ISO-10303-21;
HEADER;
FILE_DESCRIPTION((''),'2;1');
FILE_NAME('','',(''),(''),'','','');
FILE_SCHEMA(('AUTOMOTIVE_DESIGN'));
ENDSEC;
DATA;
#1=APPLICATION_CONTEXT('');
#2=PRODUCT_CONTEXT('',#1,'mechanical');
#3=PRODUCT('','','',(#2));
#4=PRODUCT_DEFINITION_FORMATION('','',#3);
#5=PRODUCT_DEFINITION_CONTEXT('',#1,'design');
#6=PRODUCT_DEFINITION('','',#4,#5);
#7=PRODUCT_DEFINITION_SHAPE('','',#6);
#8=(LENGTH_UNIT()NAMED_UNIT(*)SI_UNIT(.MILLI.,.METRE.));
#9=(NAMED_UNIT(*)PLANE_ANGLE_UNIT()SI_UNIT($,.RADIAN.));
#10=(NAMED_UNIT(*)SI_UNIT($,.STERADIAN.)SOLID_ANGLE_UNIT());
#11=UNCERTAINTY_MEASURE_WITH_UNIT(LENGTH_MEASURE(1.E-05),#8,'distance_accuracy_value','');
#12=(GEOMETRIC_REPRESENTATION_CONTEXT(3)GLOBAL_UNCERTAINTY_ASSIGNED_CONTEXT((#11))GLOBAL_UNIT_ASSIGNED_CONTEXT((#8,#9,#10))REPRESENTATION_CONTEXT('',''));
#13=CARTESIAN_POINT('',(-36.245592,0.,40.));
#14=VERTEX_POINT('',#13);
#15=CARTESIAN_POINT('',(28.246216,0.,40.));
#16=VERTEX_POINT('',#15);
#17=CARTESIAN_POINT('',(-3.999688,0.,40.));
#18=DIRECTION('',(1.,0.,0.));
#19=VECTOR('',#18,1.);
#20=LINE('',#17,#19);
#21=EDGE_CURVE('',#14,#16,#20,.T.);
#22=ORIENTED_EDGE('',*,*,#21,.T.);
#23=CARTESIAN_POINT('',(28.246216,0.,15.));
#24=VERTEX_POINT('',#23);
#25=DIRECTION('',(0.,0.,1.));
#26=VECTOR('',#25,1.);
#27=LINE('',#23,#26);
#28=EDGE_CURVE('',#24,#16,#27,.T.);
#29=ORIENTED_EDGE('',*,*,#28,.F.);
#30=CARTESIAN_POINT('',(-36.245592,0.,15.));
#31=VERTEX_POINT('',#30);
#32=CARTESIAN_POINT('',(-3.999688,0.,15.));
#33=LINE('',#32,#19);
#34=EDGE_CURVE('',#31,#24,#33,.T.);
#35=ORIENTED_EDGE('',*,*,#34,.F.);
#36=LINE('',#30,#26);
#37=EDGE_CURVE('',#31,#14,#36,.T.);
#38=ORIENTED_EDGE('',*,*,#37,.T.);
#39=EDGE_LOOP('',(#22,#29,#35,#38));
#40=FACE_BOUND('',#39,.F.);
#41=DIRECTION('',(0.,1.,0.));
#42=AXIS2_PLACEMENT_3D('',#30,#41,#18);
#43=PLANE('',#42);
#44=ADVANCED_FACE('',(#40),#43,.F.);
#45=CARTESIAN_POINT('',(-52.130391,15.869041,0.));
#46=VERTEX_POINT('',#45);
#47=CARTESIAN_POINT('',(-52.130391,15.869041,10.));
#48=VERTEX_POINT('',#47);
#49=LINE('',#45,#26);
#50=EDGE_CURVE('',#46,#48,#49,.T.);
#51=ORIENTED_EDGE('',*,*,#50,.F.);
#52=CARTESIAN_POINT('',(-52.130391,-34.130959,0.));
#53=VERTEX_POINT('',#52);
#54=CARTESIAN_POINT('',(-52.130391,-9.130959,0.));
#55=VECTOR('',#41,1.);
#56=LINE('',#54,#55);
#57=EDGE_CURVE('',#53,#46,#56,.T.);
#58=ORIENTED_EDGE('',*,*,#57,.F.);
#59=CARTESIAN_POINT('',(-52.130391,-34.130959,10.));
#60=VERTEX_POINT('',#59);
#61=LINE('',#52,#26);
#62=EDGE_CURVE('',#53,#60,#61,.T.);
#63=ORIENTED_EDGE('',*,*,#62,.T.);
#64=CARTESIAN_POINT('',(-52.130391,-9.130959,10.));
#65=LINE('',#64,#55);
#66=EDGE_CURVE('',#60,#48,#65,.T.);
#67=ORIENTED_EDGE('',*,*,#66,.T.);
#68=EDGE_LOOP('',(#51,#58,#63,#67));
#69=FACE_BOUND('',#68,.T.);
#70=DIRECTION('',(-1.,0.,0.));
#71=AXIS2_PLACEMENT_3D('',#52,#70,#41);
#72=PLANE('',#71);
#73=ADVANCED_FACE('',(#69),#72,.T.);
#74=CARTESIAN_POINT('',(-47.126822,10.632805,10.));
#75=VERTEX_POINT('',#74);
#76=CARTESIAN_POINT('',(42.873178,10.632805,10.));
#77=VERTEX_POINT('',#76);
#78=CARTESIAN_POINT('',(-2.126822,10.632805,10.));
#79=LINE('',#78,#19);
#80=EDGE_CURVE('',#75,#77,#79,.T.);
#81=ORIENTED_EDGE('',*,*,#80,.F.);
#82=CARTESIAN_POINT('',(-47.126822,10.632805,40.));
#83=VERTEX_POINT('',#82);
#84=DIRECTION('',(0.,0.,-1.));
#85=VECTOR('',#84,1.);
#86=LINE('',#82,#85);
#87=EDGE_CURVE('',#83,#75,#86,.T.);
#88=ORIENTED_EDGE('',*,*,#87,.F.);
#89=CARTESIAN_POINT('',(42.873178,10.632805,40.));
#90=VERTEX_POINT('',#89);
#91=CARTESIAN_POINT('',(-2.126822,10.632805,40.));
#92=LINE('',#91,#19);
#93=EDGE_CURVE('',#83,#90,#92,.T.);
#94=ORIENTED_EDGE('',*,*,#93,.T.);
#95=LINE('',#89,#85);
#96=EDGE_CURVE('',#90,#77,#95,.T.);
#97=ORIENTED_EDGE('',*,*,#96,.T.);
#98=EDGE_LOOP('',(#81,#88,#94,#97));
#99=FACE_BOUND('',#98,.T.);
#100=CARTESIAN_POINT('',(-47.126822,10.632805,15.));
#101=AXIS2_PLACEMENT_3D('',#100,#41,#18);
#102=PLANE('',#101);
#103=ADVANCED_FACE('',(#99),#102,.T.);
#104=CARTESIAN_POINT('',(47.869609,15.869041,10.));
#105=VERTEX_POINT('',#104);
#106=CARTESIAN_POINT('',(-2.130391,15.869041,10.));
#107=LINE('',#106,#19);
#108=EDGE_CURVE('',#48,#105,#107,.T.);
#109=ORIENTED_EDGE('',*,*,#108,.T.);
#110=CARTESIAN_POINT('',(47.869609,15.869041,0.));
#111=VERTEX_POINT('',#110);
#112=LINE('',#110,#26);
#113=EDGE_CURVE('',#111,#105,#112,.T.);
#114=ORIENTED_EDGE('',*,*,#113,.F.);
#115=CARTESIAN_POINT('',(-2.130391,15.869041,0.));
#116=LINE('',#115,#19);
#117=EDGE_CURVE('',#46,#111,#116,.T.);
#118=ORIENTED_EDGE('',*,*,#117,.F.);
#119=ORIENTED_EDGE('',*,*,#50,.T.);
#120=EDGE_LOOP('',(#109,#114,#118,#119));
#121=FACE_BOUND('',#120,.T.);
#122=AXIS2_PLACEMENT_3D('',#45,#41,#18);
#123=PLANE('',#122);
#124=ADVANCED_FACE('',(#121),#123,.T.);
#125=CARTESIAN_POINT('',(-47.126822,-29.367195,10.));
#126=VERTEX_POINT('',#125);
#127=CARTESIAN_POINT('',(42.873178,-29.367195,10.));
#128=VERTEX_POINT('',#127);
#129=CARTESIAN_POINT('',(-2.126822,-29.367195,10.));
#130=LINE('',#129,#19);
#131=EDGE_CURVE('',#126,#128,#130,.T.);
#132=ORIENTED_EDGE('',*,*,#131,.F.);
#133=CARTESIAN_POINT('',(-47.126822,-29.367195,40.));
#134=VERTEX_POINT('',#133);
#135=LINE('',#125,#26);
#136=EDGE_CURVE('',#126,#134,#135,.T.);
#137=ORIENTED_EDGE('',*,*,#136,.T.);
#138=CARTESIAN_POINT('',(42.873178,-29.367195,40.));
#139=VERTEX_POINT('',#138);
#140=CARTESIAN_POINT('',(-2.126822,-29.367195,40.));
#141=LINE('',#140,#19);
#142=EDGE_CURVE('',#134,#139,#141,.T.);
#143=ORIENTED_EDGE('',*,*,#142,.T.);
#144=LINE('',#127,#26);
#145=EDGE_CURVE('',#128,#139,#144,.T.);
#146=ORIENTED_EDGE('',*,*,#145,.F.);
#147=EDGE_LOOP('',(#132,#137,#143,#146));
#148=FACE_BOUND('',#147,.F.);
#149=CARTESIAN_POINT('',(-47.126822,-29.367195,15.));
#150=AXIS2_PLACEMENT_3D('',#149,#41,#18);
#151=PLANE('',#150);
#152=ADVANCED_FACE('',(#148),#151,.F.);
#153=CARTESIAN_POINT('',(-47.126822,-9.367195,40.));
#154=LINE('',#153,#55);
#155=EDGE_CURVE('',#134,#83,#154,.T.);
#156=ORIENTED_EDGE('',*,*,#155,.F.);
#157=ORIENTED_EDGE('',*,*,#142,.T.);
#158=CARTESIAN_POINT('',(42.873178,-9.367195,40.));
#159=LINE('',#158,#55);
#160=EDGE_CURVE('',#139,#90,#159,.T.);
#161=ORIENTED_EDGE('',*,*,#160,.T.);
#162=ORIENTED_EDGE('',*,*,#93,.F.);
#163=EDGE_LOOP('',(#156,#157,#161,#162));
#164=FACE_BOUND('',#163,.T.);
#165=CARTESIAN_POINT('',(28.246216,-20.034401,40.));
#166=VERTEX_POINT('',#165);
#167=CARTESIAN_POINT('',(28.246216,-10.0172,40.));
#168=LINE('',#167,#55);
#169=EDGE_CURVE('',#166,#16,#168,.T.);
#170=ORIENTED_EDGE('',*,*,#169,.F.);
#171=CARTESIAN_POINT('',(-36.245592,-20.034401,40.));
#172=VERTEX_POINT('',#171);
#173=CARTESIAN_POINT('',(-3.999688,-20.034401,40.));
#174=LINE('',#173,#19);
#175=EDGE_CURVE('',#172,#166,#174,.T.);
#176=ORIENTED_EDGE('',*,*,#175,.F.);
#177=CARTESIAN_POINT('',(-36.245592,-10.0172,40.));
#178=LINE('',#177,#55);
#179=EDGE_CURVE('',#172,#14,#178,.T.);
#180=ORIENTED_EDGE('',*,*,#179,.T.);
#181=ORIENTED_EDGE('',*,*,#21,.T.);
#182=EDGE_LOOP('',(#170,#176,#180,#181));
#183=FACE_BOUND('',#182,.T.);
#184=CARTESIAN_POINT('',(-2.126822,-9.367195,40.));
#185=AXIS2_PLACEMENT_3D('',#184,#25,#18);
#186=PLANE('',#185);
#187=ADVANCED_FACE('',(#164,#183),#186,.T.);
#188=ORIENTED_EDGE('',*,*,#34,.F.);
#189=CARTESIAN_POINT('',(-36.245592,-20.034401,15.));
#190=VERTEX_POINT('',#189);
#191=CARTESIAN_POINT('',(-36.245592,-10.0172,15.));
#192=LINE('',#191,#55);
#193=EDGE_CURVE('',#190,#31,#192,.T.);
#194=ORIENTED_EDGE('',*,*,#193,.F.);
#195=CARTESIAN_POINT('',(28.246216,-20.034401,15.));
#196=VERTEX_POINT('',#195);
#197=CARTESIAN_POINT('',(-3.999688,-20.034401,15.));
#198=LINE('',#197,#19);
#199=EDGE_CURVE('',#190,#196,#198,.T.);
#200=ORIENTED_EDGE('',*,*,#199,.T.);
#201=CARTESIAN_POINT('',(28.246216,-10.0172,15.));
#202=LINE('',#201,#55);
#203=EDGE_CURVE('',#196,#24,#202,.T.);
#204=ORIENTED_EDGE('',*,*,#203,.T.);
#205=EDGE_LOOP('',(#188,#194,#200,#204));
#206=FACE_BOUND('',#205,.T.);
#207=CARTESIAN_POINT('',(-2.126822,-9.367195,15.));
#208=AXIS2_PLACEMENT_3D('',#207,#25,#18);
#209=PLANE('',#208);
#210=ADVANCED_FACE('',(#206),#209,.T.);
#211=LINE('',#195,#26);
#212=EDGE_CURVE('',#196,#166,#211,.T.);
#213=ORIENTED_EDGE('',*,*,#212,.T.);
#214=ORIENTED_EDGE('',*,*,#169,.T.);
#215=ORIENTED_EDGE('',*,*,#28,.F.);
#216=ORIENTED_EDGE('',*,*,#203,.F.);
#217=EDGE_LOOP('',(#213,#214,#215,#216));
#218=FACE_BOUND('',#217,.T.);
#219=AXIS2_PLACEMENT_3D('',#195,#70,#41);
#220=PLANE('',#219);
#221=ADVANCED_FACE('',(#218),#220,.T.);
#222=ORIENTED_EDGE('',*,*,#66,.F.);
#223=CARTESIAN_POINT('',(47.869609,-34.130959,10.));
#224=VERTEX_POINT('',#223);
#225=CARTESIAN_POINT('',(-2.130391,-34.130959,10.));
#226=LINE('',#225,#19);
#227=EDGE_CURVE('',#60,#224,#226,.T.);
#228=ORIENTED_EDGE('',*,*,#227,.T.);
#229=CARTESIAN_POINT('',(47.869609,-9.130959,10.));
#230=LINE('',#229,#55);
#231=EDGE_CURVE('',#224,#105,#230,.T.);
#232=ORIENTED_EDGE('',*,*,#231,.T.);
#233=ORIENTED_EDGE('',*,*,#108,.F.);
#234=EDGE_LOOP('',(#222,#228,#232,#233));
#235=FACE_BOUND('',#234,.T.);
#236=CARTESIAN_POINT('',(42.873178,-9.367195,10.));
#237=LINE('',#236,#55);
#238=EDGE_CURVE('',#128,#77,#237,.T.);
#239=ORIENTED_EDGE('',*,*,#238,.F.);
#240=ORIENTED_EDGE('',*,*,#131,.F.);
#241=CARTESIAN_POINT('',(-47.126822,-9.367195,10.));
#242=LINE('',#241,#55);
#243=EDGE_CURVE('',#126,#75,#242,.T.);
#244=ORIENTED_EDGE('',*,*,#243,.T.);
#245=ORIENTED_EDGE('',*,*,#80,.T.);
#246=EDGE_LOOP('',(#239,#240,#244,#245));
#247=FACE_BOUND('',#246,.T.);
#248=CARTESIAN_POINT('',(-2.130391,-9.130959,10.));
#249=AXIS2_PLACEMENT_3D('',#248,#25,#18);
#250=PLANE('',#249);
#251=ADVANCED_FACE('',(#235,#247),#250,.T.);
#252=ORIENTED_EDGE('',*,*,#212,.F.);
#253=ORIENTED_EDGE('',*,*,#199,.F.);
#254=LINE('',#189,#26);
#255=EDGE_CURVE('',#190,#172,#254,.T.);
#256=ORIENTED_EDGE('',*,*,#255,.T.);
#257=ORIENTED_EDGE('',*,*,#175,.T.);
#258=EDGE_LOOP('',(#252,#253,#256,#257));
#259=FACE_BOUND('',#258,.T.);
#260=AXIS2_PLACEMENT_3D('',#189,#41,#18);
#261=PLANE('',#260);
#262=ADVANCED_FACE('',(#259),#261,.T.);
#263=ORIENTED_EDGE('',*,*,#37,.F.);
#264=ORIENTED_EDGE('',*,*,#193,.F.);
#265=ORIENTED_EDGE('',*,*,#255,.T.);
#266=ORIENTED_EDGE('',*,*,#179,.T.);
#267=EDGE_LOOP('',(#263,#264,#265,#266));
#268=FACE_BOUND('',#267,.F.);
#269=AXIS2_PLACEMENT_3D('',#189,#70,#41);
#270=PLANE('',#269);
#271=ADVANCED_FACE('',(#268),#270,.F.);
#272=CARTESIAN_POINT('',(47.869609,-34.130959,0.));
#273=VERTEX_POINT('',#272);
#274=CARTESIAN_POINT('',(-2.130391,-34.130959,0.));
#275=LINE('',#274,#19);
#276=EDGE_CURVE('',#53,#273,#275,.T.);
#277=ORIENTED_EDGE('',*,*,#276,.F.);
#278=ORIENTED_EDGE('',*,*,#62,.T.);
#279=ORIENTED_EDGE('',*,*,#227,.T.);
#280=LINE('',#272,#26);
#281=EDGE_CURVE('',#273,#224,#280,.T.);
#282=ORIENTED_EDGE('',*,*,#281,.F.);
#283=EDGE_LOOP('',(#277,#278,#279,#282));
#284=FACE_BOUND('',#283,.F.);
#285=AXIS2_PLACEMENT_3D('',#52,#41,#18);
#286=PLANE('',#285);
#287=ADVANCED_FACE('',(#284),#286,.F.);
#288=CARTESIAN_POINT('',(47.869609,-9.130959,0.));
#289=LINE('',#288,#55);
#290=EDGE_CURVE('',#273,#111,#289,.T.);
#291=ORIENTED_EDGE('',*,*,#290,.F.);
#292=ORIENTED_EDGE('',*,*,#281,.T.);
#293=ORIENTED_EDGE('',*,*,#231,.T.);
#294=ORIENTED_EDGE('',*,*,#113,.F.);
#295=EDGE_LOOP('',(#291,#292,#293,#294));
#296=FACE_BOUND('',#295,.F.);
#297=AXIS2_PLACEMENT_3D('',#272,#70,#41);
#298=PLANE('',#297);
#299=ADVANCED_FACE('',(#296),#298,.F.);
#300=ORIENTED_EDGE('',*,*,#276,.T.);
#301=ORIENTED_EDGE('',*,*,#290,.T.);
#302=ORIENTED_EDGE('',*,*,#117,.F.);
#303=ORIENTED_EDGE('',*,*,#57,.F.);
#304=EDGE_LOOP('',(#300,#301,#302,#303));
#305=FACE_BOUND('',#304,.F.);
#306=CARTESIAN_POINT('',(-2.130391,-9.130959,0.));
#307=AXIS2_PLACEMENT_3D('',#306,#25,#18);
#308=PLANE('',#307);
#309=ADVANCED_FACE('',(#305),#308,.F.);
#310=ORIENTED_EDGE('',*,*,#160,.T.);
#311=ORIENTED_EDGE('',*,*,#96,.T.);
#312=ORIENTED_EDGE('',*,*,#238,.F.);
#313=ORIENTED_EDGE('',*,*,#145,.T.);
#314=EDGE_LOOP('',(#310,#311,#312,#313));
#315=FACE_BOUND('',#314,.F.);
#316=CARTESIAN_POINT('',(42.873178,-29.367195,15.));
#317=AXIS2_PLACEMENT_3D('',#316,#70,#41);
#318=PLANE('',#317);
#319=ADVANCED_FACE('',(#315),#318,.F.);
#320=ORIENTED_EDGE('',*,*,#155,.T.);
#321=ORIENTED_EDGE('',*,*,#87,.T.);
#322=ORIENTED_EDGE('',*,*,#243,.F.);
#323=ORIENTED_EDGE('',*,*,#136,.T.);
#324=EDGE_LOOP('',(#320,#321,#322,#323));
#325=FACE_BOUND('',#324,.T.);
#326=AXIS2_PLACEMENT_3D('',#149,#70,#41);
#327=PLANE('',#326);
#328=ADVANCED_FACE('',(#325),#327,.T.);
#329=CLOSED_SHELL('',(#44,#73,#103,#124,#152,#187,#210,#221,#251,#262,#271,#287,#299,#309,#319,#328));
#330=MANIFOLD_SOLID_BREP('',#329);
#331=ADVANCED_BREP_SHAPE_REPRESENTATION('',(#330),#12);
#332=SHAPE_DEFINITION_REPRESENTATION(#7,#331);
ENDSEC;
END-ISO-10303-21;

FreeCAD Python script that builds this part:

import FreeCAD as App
import Part
import Sketcher
from FreeCAD import Vector


def add_polygon(sketch, points):
    """Adds a closed chain of lines whose ends are joined by coincident constraints."""
    first, n = sketch.GeometryCount, len(points)
    for a, b in zip(points, points[1:] + points[:1]):
        sketch.addGeometry(Part.LineSegment(App.Vector(*a, 0), App.Vector(*b, 0)), False)
    for i in range(n):
        sketch.addConstraint(Sketcher.Constraint("Coincident", first + i, 2, first + (i + 1) % n, 1))

doc = App.newDocument("Part")
body = doc.addObject("PartDesign::Body", "Body")

sketch1 = doc.addObject("Sketcher::SketchObject", "Sketch")
body.addObject(sketch1)
sketch1.AttachmentSupport = (doc.XY_Plane, [""])
sketch1.MapMode = "FlatFace"
add_polygon(sketch1, [(-52.130391, 15.869041), (-52.130391, -34.130959), (47.869609, -34.130959), (47.869609, 15.869041)])
sketch1.addConstraint(Sketcher.Constraint("Vertical", 0))
sketch1.addConstraint(Sketcher.Constraint("Horizontal", 1))
sketch1.addConstraint(Sketcher.Constraint("Vertical", 2))
sketch1.addConstraint(Sketcher.Constraint("Horizontal", 3))
sketch1.addConstraint(Sketcher.Constraint("DistanceX", 1, 1, 1, 2, 100.0))
sketch1.addConstraint(Sketcher.Constraint("DistanceY", 0, 2, 0, 1, 50.0))
sketch1.addConstraint(Sketcher.Constraint("DistanceX", 0, 2, -1, 1, 52.130391))
sketch1.addConstraint(Sketcher.Constraint("DistanceY", 0, 2, -1, 1, 34.130959))
pad1 = doc.addObject("PartDesign::Pad", "Pad")
body.addObject(pad1)
pad1.Profile = sketch1
pad1.Length = 10

sketch2 = doc.addObject("Sketcher::SketchObject", "Sketch001")
body.addObject(sketch2)
sketch2.AttachmentSupport = (doc.XY_Plane, [""])
sketch2.MapMode = "FlatFace"
sketch2.AttachmentOffset = App.Placement(Vector(0, 0, 10), App.Rotation())
add_polygon(sketch2, [(-47.126822, 10.632805), (-47.126822, -29.367195), (42.873178, -29.367195), (42.873178, 10.632805)])
sketch2.addConstraint(Sketcher.Constraint("Vertical", 0))
sketch2.addConstraint(Sketcher.Constraint("Horizontal", 1))
sketch2.addConstraint(Sketcher.Constraint("Vertical", 2))
sketch2.addConstraint(Sketcher.Constraint("Horizontal", 3))
sketch2.addConstraint(Sketcher.Constraint("DistanceX", 1, 1, 1, 2, 90.0))
sketch2.addConstraint(Sketcher.Constraint("DistanceY", 0, 2, 0, 1, 40.0))
sketch2.addConstraint(Sketcher.Constraint("DistanceX", 0, 2, -1, 1, 47.126822))
sketch2.addConstraint(Sketcher.Constraint("DistanceY", 0, 2, -1, 1, 29.367195))
pad2 = doc.addObject("PartDesign::Pad", "Pad001")
body.addObject(pad2)
pad2.Profile = sketch2
pad2.Length = 5

sketch3 = doc.addObject("Sketcher::SketchObject", "Sketch002")
body.addObject(sketch3)
sketch3.AttachmentSupport = (doc.XY_Plane, [""])
sketch3.MapMode = "FlatFace"
sketch3.AttachmentOffset = App.Placement(Vector(0, 0, 15), App.Rotation())
add_polygon(sketch3, [(-47.126822, 10.632805), (-47.126822, -29.367195), (42.873178, -29.367195), (42.873178, 10.632805)])
add_polygon(sketch3, [(28.246216, -20.034401), (-36.245592, -20.034401), (-36.245592, 0), (28.246216, 0)])
sketch3.addConstraint(Sketcher.Constraint("Vertical", 0))
sketch3.addConstraint(Sketcher.Constraint("Horizontal", 1))
sketch3.addConstraint(Sketcher.Constraint("Vertical", 2))
sketch3.addConstraint(Sketcher.Constraint("Horizontal", 3))
sketch3.addConstraint(Sketcher.Constraint("Horizontal", 4))
sketch3.addConstraint(Sketcher.Constraint("Vertical", 5))
sketch3.addConstraint(Sketcher.Constraint("Horizontal", 6))
sketch3.addConstraint(Sketcher.Constraint("Vertical", 7))
sketch3.addConstraint(Sketcher.Constraint("PointOnObject", 5, 2, -1))
sketch3.addConstraint(Sketcher.Constraint("DistanceX", 1, 1, 1, 2, 90.0))
sketch3.addConstraint(Sketcher.Constraint("DistanceY", 0, 2, 0, 1, 40.0))
sketch3.addConstraint(Sketcher.Constraint("DistanceY", 5, 1, 5, 2, 20.034401))
sketch3.addConstraint(Sketcher.Constraint("DistanceX", 4, 2, 4, 1, 64.491807))
sketch3.addConstraint(Sketcher.Constraint("DistanceX", 0, 2, -1, 1, 47.126822))
sketch3.addConstraint(Sketcher.Constraint("DistanceX", 4, 2, -1, 1, 36.245592))
sketch3.addConstraint(Sketcher.Constraint("DistanceY", 0, 2, -1, 1, 29.367195))
pad3 = doc.addObject("PartDesign::Pad", "Pad002")
body.addObject(pad3)
pad3.Profile = sketch3
pad3.Length = 25

doc.recompute()
